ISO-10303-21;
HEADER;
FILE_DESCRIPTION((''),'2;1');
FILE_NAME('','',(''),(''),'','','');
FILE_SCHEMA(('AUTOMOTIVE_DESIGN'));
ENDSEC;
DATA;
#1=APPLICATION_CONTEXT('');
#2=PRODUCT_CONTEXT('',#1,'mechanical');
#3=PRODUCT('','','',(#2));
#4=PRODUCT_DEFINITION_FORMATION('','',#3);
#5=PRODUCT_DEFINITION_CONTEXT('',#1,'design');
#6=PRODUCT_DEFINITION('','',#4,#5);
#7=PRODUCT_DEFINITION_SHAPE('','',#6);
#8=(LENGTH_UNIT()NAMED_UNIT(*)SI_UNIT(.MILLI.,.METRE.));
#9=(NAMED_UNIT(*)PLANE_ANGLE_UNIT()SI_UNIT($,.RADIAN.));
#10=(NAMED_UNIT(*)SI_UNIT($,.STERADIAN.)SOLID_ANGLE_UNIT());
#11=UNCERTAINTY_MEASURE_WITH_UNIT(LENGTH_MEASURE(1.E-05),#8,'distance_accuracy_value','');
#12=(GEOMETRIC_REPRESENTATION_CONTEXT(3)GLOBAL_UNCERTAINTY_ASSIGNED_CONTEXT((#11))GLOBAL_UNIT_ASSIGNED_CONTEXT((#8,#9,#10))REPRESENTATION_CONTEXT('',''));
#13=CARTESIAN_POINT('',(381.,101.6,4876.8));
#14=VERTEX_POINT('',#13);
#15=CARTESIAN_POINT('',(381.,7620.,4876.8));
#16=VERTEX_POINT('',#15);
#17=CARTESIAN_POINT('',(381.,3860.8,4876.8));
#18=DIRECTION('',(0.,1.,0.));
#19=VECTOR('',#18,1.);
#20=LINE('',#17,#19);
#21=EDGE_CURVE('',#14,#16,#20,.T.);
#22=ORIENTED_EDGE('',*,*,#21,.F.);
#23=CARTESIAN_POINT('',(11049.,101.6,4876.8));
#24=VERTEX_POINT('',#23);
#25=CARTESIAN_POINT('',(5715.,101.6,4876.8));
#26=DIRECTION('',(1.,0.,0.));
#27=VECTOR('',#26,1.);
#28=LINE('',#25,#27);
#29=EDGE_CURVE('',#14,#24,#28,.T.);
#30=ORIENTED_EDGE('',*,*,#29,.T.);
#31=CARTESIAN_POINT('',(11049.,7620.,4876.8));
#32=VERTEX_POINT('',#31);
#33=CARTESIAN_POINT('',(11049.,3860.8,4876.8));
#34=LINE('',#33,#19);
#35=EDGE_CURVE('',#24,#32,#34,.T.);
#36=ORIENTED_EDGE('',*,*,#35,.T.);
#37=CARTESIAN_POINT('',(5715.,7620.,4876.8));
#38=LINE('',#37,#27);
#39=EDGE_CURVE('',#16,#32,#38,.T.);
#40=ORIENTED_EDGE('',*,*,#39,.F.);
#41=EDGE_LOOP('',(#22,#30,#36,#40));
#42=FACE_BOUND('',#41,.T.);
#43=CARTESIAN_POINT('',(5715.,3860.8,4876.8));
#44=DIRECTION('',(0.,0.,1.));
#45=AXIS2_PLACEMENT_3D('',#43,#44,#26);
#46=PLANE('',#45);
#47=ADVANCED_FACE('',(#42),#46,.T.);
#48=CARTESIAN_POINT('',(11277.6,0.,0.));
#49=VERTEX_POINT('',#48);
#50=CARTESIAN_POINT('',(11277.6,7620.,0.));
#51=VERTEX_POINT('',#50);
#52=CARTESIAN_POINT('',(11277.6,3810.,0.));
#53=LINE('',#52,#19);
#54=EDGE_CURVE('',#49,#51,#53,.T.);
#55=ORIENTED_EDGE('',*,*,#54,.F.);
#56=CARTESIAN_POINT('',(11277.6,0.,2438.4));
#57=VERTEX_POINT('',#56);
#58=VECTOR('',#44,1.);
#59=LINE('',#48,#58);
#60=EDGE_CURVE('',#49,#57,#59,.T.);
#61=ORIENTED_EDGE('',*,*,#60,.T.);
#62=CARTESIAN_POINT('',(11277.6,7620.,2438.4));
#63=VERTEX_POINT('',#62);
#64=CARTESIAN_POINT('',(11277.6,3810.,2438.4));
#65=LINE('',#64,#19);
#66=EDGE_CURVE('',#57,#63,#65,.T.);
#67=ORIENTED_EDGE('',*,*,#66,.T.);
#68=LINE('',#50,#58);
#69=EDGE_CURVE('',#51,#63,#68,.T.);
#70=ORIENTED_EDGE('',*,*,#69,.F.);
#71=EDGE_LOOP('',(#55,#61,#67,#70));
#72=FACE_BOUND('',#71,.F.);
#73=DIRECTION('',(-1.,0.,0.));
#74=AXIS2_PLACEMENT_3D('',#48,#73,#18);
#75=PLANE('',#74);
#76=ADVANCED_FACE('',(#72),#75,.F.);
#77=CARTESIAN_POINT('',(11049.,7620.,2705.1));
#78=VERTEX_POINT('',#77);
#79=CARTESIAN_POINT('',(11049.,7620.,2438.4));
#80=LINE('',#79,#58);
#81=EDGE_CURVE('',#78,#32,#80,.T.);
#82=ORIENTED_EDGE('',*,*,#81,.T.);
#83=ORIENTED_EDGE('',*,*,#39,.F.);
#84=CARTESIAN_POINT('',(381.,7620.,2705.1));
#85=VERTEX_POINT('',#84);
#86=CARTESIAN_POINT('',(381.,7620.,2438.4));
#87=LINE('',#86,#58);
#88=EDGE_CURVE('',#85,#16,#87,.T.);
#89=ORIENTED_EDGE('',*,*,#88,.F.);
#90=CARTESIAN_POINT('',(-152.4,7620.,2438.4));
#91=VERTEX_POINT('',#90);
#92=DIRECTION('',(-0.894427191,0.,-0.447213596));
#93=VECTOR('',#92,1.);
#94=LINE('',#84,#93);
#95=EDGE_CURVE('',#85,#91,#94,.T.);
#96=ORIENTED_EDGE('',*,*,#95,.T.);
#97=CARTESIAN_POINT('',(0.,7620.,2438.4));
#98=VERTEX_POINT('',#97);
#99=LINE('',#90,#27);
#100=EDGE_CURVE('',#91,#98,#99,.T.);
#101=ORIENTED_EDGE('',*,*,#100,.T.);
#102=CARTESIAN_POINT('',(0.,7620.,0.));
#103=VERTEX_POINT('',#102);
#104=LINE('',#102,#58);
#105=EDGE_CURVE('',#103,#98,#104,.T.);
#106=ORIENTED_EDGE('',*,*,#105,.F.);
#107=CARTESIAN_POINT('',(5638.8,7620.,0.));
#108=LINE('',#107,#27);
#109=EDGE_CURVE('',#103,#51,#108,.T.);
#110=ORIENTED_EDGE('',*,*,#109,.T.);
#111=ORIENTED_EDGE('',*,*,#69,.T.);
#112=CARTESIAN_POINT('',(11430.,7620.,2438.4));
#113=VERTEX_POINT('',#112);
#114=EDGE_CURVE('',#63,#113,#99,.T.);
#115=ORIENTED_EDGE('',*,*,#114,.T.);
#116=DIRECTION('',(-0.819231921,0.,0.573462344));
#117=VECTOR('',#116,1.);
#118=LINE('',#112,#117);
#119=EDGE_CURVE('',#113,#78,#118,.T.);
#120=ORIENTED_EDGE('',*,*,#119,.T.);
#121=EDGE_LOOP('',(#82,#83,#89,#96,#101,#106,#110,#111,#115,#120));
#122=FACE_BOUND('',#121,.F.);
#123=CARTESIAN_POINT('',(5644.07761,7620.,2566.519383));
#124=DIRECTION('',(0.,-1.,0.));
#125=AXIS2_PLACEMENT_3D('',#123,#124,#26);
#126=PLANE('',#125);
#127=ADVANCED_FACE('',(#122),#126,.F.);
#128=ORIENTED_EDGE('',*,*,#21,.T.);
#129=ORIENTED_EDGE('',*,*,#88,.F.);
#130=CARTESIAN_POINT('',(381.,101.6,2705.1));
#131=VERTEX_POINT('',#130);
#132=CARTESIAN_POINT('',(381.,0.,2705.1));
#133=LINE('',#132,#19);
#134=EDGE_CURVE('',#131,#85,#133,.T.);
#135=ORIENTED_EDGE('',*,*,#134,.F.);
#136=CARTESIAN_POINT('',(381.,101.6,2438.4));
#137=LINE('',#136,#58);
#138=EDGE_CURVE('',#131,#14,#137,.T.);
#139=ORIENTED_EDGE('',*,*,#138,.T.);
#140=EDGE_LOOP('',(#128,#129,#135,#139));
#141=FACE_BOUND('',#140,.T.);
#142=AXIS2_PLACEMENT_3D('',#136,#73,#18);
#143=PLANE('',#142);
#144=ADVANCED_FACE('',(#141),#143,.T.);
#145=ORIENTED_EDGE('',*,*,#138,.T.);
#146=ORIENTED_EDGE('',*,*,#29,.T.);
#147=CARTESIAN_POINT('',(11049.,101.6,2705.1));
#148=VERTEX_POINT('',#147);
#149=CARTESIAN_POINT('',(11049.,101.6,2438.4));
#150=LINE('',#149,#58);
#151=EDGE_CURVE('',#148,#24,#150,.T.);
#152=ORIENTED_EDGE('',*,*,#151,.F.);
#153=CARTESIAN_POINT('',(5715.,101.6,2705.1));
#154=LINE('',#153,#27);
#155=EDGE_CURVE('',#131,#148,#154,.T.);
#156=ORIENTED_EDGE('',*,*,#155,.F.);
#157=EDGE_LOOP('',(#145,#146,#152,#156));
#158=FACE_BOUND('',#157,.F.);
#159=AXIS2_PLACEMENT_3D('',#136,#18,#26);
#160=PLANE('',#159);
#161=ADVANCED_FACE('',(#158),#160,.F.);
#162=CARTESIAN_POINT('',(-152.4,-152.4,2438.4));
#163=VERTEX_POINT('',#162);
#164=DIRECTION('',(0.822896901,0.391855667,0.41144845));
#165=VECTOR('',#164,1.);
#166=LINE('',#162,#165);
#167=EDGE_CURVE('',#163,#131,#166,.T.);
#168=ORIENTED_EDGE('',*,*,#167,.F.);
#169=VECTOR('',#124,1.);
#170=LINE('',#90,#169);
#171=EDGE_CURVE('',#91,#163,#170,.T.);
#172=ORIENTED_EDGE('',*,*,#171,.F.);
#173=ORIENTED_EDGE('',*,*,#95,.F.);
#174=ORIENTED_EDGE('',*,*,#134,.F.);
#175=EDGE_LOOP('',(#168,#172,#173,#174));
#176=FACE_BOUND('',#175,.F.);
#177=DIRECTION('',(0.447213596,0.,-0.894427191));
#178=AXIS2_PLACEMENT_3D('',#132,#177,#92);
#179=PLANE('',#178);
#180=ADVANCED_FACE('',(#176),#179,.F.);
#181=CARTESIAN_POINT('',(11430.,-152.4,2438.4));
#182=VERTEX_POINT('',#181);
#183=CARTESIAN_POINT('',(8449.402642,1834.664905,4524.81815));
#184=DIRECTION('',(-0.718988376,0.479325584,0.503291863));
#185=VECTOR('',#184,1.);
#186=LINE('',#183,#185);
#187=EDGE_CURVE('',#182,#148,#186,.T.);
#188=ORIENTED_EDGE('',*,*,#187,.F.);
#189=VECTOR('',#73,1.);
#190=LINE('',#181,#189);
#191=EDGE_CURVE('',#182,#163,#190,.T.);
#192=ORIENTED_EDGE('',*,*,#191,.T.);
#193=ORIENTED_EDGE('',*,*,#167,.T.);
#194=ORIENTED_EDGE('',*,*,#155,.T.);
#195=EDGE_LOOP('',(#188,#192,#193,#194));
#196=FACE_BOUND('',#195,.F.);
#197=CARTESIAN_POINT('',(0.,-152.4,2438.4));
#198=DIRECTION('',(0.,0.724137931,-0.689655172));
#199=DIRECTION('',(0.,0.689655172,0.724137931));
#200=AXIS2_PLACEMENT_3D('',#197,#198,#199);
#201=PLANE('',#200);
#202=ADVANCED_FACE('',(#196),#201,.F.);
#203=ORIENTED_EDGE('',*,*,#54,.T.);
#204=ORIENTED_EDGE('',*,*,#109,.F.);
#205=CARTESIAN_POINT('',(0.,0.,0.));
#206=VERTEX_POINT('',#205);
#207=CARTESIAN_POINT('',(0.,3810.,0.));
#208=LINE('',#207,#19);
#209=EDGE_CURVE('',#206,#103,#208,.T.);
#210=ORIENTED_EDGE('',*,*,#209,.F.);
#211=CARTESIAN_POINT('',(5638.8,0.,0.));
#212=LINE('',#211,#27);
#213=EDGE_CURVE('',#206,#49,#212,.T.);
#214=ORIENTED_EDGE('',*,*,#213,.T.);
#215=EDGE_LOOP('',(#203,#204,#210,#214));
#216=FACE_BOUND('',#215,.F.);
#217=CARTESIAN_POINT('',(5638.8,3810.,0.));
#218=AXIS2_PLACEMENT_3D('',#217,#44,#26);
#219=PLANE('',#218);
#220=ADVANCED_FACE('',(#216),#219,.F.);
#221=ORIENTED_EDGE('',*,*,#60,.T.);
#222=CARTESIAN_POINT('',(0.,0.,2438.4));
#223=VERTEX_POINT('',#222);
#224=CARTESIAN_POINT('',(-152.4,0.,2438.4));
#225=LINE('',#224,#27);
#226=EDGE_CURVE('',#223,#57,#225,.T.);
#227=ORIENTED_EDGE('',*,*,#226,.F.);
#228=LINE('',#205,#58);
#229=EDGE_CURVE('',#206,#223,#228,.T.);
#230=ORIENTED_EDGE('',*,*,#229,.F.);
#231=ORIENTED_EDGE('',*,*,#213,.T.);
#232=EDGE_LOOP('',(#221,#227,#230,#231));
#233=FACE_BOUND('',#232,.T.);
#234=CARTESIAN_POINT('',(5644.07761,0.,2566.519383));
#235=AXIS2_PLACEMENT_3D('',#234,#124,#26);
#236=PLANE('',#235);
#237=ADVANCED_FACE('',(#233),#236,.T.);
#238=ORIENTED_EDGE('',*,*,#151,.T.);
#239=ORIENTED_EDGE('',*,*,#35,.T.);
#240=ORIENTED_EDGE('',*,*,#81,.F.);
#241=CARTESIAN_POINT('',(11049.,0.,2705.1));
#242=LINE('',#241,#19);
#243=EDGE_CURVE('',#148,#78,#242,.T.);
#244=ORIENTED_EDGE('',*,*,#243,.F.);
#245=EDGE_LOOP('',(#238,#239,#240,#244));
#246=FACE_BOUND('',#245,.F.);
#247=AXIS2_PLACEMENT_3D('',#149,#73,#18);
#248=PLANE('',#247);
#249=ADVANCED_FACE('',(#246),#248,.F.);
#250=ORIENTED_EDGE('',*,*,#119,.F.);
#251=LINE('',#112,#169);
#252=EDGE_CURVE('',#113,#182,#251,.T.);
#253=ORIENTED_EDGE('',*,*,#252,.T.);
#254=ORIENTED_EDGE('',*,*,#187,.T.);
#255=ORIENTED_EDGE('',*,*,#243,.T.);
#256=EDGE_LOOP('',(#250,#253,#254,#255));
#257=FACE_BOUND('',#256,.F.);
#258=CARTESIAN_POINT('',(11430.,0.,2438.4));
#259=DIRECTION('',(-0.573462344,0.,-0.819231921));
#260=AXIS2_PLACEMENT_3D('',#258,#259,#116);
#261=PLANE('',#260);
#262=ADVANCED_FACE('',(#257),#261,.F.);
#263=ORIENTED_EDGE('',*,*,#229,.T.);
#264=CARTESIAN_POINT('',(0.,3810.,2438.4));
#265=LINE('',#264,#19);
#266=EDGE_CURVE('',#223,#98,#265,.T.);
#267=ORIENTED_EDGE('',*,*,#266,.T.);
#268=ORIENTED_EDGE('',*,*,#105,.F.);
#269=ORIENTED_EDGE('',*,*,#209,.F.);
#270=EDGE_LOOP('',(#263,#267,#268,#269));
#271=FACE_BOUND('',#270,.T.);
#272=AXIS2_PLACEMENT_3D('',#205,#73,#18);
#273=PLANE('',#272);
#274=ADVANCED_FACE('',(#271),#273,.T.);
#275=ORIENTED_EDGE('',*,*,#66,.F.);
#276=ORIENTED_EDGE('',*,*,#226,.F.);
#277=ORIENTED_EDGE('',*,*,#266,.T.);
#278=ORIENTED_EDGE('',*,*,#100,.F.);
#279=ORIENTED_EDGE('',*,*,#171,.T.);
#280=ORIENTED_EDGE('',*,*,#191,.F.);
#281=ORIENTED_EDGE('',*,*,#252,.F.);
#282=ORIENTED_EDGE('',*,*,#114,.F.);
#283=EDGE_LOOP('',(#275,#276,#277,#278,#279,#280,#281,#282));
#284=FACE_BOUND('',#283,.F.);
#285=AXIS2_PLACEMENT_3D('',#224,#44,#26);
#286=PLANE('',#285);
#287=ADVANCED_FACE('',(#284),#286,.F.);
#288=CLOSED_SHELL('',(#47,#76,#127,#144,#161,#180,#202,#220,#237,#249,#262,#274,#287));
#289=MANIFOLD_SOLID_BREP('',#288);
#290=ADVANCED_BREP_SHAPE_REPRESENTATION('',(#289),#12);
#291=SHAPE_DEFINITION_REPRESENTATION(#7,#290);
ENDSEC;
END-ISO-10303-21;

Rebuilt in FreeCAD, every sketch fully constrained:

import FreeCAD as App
import Part
import Sketcher
from FreeCAD import Vector
Q = App.Units.Quantity

doc = App.newDocument("Part")
body = doc.addObject("PartDesign::Body", "Body")

# Sketch on XY plane
sketch1 = doc.addObject("Sketcher::SketchObject", "Sketch")
body.addObject(sketch1)
sketch1.AttachmentSupport = (doc.XY_Plane, [""])
sketch1.MapMode = "FlatFace"
sketch1.addGeometry([
    Part.LineSegment(Vector(0, 7620, 0), Vector(0, 0, 0)),
    Part.LineSegment(Vector(0, 0, 0), Vector(11278, 0, 0)),
    Part.LineSegment(Vector(11278, 0, 0), Vector(11278, 7620, 0)),
    Part.LineSegment(Vector(11278, 7620, 0), Vector(0, 7620, 0)),
], False)
sketch1.addConstraint([
    Sketcher.Constraint("Coincident", 0, 2, 1, 1),
    Sketcher.Constraint("Coincident", 1, 2, 2, 1),
    Sketcher.Constraint("Coincident", 2, 2, 3, 1),
    Sketcher.Constraint("Coincident", 3, 2, 0, 1),
    Sketcher.Constraint("Vertical", 0),
    Sketcher.Constraint("Horizontal", 1),
    Sketcher.Constraint("Vertical", 2),
    Sketcher.Constraint("Horizontal", 3),
    Sketcher.Constraint("Coincident", 0, 2, -1, 1),
    Sketcher.Constraint("DistanceX", 1, 1, 1, 2, Q("444 in")),
    Sketcher.Constraint("DistanceY", 0, 2, 0, 1, Q("300 in")),
])
pad1 = doc.addObject("PartDesign::Pad", "Pad")
body.addObject(pad1)
pad1.Profile = sketch1
pad1.Length = Q("96 in")
body2 = doc.addObject("PartDesign::Body", "Body001")

# Sketch on XY plane
sketch2 = doc.addObject("Sketcher::SketchObject", "Sketch001")
body2.addObject(sketch2)
sketch2.AttachmentSupport = (doc.getObject("XY_Plane001"), [""])
sketch2.MapMode = "FlatFace"
sketch2.AttachmentOffset = App.Placement(Vector(0, 0, 96 * 25.4), App.Rotation())
sketch2.addGeometry([
    Part.LineSegment(Vector(381, 7620, 0), Vector(381, 102, 0)),
    Part.LineSegment(Vector(381, 102, 0), Vector(11049, 102, 0)),
    Part.LineSegment(Vector(11049, 102, 0), Vector(11049, 7620, 0)),
    Part.LineSegment(Vector(11049, 7620, 0), Vector(381, 7620, 0)),
], False)
sketch2.addConstraint([
    Sketcher.Constraint("Coincident", 0, 2, 1, 1),
    Sketcher.Constraint("Coincident", 1, 2, 2, 1),
    Sketcher.Constraint("Coincident", 2, 2, 3, 1),
    Sketcher.Constraint("Coincident", 3, 2, 0, 1),
    Sketcher.Constraint("Vertical", 0),
    Sketcher.Constraint("Horizontal", 1),
    Sketcher.Constraint("Vertical", 2),
    Sketcher.Constraint("Horizontal", 3),
    Sketcher.Constraint("DistanceX", 1, 1, 1, 2, Q("420 in")),
    Sketcher.Constraint("DistanceY", 0, 2, 0, 1, Q("296 in")),
    Sketcher.Constraint("DistanceX", -1, 1, 0, 2, Q("15 in")),
    Sketcher.Constraint("DistanceY", -1, 1, 0, 2, Q("4 in")),
])
pad2 = doc.addObject("PartDesign::Pad", "Pad001")
body2.addObject(pad2)
pad2.Profile = sketch2
pad2.Length = Q("96 in")
doc.recompute()

boolean = doc.addObject("PartDesign::Boolean", "Boolean")
body.addObject(boolean)
boolean.Type = "Fuse"
boolean.addObjects([body2])

# Sketch on XZ plane
sketch3 = doc.addObject("Sketcher::SketchObject", "Sketch002")
body.addObject(sketch3)
sketch3.AttachmentSupport = (doc.XZ_Plane, [""])
sketch3.MapMode = "FlatFace"
sketch3.addGeometry([
    Part.LineSegment(Vector(381, 2705, 0), Vector(-152, 2438, 0)),
    Part.LineSegment(Vector(-152, 2438, 0), Vector(11430, 2438, 0)),
    Part.LineSegment(Vector(11430, 2438, 0), Vector(11049, 2705, 0)),
    Part.LineSegment(Vector(11049, 2705, 0), Vector(381, 2705, 0)),
], False)
sketch3.addConstraint([
    Sketcher.Constraint("Coincident", 0, 2, 1, 1),
    Sketcher.Constraint("Coincident", 1, 2, 2, 1),
    Sketcher.Constraint("Coincident", 2, 2, 3, 1),
    Sketcher.Constraint("Coincident", 3, 2, 0, 1),
    Sketcher.Constraint("Horizontal", 1),
    Sketcher.Constraint("Horizontal", 3),
    Sketcher.Constraint("DistanceX", 1, 1, 1, 2, Q("456 in")),
    Sketcher.Constraint("DistanceX", 3, 2, 3, 1, Q("420 in")),
    Sketcher.Constraint("DistanceX", 0, 2, -1, 1, Q("6 in")),
    Sketcher.Constraint("DistanceY", -1, 1, 0, 2, Q("96 in")),
    Sketcher.Constraint("DistanceX", -1, 1, 2, 2, Q("435 in")),
    Sketcher.Constraint("DistanceY", -1, 1, 2, 2, Q("106.5 in")),
])
pad3 = doc.addObject("PartDesign::Pad", "Pad002")
body.addObject(pad3)
pad3.Profile = sketch3
pad3.Type = "TwoLengths"
pad3.Length = Q("300 in")
pad3.Length2 = Q("6 in")
pad3.Reversed = True

# Sketch on YZ plane
sketch4 = doc.addObject("Sketcher::SketchObject", "Sketch003")
body.addObject(sketch4)
sketch4.AttachmentSupport = (doc.YZ_Plane, [""])
sketch4.MapMode = "FlatFace"
sketch4.addGeometry([
    Part.LineSegment(Vector(-152, 2705, 0), Vector(-152, 2438, 0)),
    Part.LineSegment(Vector(-152, 2438, 0), Vector(102, 2705, 0)),
    Part.LineSegment(Vector(102, 2705, 0), Vector(-152, 2705, 0)),
], False)
sketch4.addConstraint([
    Sketcher.Constraint("Coincident", 0, 2, 1, 1),
    Sketcher.Constraint("Coincident", 1, 2, 2, 1),
    Sketcher.Constraint("Coincident", 2, 2, 0, 1),
    Sketcher.Constraint("Vertical", 0),
    Sketcher.Constraint("Horizontal", 2),
    Sketcher.Constraint("DistanceX", 2, 2, 2, 1, Q("10 in")),
    Sketcher.Constraint("DistanceY", 0, 2, 0, 1, Q("10.5 in")),
    Sketcher.Constraint("DistanceX", 0, 2, -1, 1, Q("6 in")),
    Sketcher.Constraint("DistanceY", -1, 1, 0, 2, Q("96 in")),
])
pocket1 = doc.addObject("PartDesign::Pocket", "Pocket")
body.addObject(pocket1)
pocket1.Profile = sketch4
pocket1.Type = "ThroughAll"
pocket1.Midplane = True

doc.recompute()
